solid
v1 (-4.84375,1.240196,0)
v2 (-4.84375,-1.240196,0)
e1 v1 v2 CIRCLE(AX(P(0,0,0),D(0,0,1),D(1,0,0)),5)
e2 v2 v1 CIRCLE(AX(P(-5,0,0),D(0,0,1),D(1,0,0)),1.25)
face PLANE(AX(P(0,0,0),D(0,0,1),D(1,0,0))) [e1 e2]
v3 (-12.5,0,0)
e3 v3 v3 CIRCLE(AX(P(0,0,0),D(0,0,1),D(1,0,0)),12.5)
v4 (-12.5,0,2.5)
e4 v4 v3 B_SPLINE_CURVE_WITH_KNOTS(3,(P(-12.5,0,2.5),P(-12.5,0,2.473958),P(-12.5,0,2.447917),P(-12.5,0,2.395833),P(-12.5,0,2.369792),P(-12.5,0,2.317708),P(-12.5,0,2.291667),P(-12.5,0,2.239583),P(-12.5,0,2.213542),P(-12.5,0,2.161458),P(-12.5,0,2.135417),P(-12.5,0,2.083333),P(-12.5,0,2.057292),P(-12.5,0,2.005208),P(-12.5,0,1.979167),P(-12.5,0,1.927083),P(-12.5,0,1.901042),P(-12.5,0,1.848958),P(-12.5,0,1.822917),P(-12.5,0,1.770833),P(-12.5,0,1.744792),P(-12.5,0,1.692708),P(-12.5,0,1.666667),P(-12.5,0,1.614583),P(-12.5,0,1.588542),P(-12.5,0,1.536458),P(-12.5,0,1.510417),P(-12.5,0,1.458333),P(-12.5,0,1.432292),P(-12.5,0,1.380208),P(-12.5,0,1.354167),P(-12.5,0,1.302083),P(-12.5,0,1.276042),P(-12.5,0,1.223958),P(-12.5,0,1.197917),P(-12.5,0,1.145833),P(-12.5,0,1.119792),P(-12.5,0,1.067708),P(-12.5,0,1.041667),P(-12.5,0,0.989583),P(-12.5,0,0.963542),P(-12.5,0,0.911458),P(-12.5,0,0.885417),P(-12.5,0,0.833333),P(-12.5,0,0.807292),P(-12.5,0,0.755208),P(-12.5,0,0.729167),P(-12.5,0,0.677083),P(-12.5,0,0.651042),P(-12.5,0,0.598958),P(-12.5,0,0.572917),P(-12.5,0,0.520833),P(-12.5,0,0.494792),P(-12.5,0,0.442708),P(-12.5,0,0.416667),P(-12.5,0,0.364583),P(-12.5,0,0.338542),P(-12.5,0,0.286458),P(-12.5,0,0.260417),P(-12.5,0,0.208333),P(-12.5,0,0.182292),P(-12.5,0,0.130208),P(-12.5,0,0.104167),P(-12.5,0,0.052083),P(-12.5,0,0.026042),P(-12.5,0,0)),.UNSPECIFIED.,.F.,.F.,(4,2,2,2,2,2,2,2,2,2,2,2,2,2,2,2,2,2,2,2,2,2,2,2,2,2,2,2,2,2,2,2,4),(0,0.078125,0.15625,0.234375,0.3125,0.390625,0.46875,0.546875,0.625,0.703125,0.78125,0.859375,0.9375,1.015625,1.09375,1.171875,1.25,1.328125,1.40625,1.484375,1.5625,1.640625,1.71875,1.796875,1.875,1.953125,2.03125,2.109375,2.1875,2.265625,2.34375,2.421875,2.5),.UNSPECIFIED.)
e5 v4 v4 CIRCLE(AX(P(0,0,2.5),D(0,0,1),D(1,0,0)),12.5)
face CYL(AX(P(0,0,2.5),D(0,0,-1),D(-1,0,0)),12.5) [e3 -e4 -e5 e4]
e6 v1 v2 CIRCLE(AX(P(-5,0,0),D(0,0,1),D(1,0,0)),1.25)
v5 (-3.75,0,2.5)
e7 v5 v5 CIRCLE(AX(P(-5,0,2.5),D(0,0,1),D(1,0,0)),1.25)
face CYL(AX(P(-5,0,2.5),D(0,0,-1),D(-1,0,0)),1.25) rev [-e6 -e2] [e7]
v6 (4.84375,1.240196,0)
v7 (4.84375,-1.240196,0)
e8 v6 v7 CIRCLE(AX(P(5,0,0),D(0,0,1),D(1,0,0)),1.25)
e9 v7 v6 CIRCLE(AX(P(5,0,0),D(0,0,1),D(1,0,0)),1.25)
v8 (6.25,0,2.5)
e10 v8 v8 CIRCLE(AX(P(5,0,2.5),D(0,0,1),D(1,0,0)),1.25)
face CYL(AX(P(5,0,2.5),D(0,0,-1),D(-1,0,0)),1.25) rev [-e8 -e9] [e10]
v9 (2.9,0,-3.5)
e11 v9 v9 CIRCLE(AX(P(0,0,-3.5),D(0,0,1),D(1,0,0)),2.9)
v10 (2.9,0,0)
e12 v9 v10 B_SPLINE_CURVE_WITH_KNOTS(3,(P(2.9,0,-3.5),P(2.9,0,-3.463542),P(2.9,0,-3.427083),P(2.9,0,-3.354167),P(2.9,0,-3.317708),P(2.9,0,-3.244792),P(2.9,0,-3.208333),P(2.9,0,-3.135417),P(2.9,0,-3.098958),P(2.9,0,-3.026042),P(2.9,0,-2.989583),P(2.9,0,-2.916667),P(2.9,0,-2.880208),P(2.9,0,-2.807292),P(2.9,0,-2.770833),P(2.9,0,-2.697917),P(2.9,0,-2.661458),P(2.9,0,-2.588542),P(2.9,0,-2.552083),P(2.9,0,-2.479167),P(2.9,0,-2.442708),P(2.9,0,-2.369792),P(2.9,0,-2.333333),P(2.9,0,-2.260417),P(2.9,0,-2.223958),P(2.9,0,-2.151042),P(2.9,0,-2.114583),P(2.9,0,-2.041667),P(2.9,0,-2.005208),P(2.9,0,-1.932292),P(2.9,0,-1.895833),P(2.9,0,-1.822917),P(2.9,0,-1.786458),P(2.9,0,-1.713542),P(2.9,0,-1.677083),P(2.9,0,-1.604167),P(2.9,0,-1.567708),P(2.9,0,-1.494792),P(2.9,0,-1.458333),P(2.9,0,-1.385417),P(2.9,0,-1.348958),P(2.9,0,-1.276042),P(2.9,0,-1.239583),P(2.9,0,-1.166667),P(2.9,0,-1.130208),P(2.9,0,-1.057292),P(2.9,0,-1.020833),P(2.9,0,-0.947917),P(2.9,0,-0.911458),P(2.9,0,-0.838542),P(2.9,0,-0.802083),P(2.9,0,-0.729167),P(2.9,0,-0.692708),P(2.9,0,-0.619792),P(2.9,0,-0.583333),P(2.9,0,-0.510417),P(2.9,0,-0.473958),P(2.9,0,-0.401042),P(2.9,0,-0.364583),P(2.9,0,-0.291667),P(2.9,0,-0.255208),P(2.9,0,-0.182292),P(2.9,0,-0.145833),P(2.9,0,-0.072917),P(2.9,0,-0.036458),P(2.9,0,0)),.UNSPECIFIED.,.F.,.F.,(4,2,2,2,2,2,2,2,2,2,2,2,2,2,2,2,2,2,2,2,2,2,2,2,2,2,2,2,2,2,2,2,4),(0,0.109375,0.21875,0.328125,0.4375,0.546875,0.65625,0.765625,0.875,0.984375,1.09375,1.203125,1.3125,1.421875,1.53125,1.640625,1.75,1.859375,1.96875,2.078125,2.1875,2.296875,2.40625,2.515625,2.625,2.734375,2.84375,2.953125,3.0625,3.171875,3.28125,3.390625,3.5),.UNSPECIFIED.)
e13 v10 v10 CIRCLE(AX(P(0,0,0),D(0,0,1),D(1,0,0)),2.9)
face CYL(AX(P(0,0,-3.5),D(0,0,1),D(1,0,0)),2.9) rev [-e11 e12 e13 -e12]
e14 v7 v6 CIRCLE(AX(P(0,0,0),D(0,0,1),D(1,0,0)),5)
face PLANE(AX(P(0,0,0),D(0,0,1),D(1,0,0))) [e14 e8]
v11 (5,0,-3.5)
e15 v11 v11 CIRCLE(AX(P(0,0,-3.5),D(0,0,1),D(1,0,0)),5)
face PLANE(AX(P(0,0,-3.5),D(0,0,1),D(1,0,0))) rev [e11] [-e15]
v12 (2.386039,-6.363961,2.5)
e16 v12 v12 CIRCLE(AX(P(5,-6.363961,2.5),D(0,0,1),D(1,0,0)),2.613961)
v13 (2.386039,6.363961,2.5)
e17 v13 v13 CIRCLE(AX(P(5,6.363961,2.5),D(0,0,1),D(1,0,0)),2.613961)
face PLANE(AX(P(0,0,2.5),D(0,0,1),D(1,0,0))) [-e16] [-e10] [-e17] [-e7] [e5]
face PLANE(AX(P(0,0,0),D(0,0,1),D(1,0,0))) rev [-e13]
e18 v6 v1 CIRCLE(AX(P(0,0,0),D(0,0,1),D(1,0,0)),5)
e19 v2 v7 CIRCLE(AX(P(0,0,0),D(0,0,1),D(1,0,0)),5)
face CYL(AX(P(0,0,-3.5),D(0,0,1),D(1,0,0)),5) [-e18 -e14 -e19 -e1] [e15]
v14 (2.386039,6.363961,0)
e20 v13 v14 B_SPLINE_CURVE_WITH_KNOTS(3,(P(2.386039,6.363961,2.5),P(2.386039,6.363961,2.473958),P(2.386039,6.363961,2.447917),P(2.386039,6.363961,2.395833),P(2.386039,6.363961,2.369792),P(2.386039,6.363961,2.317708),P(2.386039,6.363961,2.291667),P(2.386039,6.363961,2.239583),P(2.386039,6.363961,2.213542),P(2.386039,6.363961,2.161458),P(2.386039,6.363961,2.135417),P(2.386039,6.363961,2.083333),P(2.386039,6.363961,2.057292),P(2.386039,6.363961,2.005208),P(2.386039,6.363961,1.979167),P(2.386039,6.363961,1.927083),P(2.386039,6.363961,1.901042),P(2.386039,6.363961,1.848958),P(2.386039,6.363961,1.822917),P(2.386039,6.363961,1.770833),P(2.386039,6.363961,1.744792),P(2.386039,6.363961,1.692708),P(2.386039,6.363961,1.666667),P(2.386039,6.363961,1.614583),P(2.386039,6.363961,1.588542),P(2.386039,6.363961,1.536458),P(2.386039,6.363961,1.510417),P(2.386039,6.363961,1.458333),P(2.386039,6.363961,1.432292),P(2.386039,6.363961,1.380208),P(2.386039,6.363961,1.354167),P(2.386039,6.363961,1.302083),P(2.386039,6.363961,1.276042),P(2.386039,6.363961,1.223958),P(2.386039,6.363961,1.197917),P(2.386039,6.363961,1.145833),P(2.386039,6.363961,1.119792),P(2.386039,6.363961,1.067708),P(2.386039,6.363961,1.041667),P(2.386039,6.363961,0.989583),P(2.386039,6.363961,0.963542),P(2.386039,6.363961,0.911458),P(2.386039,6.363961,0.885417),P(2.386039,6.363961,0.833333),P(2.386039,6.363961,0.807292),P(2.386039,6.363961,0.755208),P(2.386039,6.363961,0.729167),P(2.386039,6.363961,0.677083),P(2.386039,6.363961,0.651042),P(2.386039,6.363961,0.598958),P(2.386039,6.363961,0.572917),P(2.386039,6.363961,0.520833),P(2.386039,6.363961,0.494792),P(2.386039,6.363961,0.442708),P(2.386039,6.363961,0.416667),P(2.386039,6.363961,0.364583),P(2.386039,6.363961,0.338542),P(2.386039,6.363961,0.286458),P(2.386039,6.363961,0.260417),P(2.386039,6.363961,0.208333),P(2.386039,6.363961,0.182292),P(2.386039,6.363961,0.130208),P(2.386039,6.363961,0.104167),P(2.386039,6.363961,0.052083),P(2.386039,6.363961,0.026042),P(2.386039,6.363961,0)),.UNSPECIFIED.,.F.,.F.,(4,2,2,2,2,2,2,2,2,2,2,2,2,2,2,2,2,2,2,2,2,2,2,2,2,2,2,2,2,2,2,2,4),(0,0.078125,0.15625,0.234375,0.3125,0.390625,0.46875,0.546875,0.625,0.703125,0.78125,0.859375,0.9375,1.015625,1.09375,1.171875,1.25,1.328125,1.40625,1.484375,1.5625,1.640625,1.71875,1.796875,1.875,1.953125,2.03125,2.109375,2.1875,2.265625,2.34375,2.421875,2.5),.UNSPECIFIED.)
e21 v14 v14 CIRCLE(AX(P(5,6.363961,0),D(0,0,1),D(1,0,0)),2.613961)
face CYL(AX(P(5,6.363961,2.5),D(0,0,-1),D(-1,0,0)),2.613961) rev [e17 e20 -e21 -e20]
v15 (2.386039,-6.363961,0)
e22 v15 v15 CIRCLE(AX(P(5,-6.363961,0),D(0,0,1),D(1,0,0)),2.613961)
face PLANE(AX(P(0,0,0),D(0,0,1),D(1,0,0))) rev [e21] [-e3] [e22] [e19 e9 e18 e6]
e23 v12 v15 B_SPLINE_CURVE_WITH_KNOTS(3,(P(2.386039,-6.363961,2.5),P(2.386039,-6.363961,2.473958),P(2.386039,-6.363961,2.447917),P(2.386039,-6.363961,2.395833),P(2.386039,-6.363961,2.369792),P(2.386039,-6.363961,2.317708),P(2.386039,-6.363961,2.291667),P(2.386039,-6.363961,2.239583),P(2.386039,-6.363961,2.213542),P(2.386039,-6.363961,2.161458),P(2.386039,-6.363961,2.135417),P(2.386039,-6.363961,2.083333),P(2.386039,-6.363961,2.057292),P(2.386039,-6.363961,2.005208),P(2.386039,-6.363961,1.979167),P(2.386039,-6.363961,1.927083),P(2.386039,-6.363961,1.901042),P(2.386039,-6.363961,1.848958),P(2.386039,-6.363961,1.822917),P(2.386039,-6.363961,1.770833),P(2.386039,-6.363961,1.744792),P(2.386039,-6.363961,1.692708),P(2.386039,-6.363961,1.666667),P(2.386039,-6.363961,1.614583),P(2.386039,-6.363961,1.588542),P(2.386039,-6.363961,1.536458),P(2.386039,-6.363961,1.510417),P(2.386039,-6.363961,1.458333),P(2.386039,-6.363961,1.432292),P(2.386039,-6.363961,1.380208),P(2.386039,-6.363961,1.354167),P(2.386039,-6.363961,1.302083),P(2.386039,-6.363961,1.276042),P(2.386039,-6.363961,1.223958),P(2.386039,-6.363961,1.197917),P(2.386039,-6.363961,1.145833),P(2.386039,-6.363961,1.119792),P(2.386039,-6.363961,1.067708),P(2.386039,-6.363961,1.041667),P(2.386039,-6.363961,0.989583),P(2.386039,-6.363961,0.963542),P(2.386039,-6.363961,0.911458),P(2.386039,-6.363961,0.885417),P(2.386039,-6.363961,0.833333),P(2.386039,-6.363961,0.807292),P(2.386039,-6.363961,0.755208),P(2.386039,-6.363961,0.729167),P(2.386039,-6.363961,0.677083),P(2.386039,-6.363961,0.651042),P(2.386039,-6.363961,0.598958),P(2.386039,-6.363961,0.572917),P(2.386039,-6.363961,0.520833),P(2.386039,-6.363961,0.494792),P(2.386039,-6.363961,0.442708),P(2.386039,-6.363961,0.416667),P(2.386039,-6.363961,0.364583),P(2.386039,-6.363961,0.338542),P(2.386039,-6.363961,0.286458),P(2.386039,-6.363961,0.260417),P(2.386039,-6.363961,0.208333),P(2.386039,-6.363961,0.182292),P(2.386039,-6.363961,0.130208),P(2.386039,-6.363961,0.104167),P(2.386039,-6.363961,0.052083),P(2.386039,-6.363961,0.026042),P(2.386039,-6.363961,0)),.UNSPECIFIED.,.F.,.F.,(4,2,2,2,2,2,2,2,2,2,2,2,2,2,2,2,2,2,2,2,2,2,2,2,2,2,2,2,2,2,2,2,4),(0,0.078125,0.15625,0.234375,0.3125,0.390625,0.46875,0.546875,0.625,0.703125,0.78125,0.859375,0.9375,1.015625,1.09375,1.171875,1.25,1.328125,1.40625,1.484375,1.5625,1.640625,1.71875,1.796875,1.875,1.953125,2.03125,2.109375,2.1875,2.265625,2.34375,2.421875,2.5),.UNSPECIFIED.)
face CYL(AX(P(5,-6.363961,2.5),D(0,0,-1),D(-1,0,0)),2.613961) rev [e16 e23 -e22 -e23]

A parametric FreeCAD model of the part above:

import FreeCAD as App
import Part
import Sketcher

V = App.Vector
Q = App.Units.Quantity

doc = App.newDocument("Part")
body = doc.addObject("PartDesign::Body", "Body")

# Sketch on XY plane
sketch1 = doc.addObject("Sketcher::SketchObject", "Sketch")
body.addObject(sketch1)
sketch1.AttachmentSupport = (doc.XY_Plane, [""])
sketch1.MapMode = "FlatFace"
sketch1.addGeometry(Part.Circle(V(0, 0, 0), V(0, 0, 1), 12.5), False)
sketch1.addGeometry(Part.Circle(V(5, -6.363961, 0), V(0, 0, 1), 2.613961), False)
sketch1.addGeometry(Part.Circle(V(-5, 0, 0), V(0, 0, 1), 1.25), False)
sketch1.addGeometry(Part.Circle(V(5, 0, 0), V(0, 0, 1), 1.25), False)
sketch1.addGeometry(Part.Circle(V(5, 6.363961, 0), V(0, 0, 1), 2.613961), False)
sketch1.addConstraint(Sketcher.Constraint("Coincident", 0, 3, -1, 1))
sketch1.addConstraint(Sketcher.Constraint("Equal", 2, 3))
sketch1.addConstraint(Sketcher.Constraint("Equal", 1, 4))
sketch1.addConstraint(Sketcher.Constraint("Symmetric", 2, 3, 3, 3, -1, 1))
sketch1.addConstraint(Sketcher.Constraint("Symmetric", 1, 3, 4, 3, -1))
sketch1.addConstraint(Sketcher.Constraint("PointOnObject", 2, 3, -1))
sketch1.addConstraint(Sketcher.Constraint("Vertical", 1, 3, 3, 3))
sketch1.addConstraint(Sketcher.Constraint("Diameter", 0, Q("25 mm")))
sketch1.addConstraint(Sketcher.Constraint("Diameter", 2, Q("2.5 mm")))
sketch1.addConstraint(Sketcher.Constraint("DistanceX", -1, 1, 1, 3, Q("5 mm")))
sketch1.addConstraint(Sketcher.Constraint("Diameter", 1, Q("5.227922 mm")))
sketch1.addConstraint(Sketcher.Constraint("DistanceY", 1, 3, -1, 1, Q("6.363961 mm")))
pad1 = doc.addObject("PartDesign::Pad", "Pad")
body.addObject(pad1)
pad1.Profile = sketch1
pad1.Length = 2.5

# Sketch on XY plane
sketch2 = doc.addObject("Sketcher::SketchObject", "Sketch001")
body.addObject(sketch2)
sketch2.AttachmentSupport = (doc.XY_Plane, [""])
sketch2.MapMode = "FlatFace"
sketch2.addGeometry(Part.Circle(V(0, 0, 0), V(0, 0, 1), 5), False)
sketch2.addGeometry(Part.Circle(V(0, 0, 0), V(0, 0, 1), 2.9), False)
sketch2.addConstraint(Sketcher.Constraint("Coincident", 0, 3, -1, 1))
sketch2.addConstraint(Sketcher.Constraint("Coincident", 1, 3, -1, 1))
sketch2.addConstraint(Sketcher.Constraint("Diameter", 0, Q("10 mm")))
sketch2.addConstraint(Sketcher.Constraint("Diameter", 1, Q("5.8 mm")))
pad2 = doc.addObject("PartDesign::Pad", "Pad001")
body.addObject(pad2)
pad2.Profile = sketch2
pad2.Length = 3.5
pad2.Reversed = True

doc.recompute()
